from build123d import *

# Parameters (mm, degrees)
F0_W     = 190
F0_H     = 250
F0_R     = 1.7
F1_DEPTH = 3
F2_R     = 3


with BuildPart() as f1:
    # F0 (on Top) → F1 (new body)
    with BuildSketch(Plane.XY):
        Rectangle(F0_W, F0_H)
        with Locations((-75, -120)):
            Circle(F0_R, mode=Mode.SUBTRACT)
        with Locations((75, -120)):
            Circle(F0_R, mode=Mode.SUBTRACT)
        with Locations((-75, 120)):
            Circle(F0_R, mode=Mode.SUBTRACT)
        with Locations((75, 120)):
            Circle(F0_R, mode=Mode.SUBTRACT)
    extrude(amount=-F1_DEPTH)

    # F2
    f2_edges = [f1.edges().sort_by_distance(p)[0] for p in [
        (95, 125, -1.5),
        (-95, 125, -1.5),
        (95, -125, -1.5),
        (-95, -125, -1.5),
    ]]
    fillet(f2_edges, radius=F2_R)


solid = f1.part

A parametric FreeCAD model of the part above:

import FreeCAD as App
import Part
import Sketcher
Q = App.Units.Quantity


def edges_at(feature, points):
    """Names of the edges that pass closest to the given points."""
    edges = feature.Shape.Edges
    near = lambda p: min(range(len(edges)), key=lambda i: edges[i].distToShape(Part.Vertex(*p))[0])
    return sorted({f"Edge{near(p) + 1}" for p in points})

doc = App.newDocument("Part")
body = doc.addObject("PartDesign::Body", "Body")

sketch1 = body.newObject("Sketcher::SketchObject", "Sketch")
sketch1.AttachmentSupport = (doc.getObject("XY_Plane"), [""])
sketch1.MapMode = "FlatFace"
sketch1.addGeometry([
    Part.LineSegment(App.Vector(-95, 125, 0), App.Vector(-95, -125, 0)),
    Part.LineSegment(App.Vector(-95, -125, 0), App.Vector(95, -125, 0)),
    Part.LineSegment(App.Vector(95, -125, 0), App.Vector(95, 125, 0)),
    Part.LineSegment(App.Vector(95, 125, 0), App.Vector(-95, 125, 0)),
    Part.Circle(App.Vector(-75, -120, 0), App.Vector(0, 0, 1), 1.7),
    Part.Circle(App.Vector(75, -120, 0), App.Vector(0, 0, 1), 1.7),
    Part.Circle(App.Vector(-75, 120, 0), App.Vector(0, 0, 1), 1.7),
    Part.Circle(App.Vector(75, 120, 0), App.Vector(0, 0, 1), 1.7),
], False)
sketch1.addConstraint([
    Sketcher.Constraint("Coincident", 0, 2, 1, 1),
    Sketcher.Constraint("Coincident", 1, 2, 2, 1),
    Sketcher.Constraint("Coincident", 2, 2, 3, 1),
    Sketcher.Constraint("Coincident", 3, 2, 0, 1),
    Sketcher.Constraint("Vertical", 0),
    Sketcher.Constraint("Horizontal", 1),
    Sketcher.Constraint("Vertical", 2),
    Sketcher.Constraint("Horizontal", 3),
    Sketcher.Constraint("Equal", 4, 5),
    Sketcher.Constraint("Equal", 5, 6),
    Sketcher.Constraint("Equal", 6, 7),
    Sketcher.Constraint("Symmetric", 5, 3, 6, 3, -1, 1),
    Sketcher.Constraint("Symmetric", 4, 3, 7, 3, -1, 1),
    Sketcher.Constraint("Symmetric", 0, 2, 2, 2, -1, 1),
    Sketcher.Constraint("Symmetric", 4, 3, 5, 3, -2),
    Sketcher.Constraint("Diameter", 4, Q("3.4 mm")),
    Sketcher.Constraint("DistanceX", 1, 1, 1, 2, Q("190 mm")),
    Sketcher.Constraint("DistanceY", 0, 2, 0, 1, Q("250 mm")),
    Sketcher.Constraint("DistanceX", 4, 3, -1, 1, Q("75 mm")),
    Sketcher.Constraint("DistanceY", 4, 3, -1, 1, Q("120 mm")),
])
pad1 = body.newObject("PartDesign::Pad", "Pad")
pad1.Profile = sketch1
pad1.Length = 3
pad1.Reversed = True
doc.recompute()

fillet = body.newObject("PartDesign::Fillet", "Fillet")
fillet.Base = (pad1, edges_at(pad1, [
    (95, 125, -1.5),
    (-95, 125, -1.5),
    (95, -125, -1.5),
    (-95, -125, -1.5),
]))
fillet.Radius = 3

doc.recompute()
